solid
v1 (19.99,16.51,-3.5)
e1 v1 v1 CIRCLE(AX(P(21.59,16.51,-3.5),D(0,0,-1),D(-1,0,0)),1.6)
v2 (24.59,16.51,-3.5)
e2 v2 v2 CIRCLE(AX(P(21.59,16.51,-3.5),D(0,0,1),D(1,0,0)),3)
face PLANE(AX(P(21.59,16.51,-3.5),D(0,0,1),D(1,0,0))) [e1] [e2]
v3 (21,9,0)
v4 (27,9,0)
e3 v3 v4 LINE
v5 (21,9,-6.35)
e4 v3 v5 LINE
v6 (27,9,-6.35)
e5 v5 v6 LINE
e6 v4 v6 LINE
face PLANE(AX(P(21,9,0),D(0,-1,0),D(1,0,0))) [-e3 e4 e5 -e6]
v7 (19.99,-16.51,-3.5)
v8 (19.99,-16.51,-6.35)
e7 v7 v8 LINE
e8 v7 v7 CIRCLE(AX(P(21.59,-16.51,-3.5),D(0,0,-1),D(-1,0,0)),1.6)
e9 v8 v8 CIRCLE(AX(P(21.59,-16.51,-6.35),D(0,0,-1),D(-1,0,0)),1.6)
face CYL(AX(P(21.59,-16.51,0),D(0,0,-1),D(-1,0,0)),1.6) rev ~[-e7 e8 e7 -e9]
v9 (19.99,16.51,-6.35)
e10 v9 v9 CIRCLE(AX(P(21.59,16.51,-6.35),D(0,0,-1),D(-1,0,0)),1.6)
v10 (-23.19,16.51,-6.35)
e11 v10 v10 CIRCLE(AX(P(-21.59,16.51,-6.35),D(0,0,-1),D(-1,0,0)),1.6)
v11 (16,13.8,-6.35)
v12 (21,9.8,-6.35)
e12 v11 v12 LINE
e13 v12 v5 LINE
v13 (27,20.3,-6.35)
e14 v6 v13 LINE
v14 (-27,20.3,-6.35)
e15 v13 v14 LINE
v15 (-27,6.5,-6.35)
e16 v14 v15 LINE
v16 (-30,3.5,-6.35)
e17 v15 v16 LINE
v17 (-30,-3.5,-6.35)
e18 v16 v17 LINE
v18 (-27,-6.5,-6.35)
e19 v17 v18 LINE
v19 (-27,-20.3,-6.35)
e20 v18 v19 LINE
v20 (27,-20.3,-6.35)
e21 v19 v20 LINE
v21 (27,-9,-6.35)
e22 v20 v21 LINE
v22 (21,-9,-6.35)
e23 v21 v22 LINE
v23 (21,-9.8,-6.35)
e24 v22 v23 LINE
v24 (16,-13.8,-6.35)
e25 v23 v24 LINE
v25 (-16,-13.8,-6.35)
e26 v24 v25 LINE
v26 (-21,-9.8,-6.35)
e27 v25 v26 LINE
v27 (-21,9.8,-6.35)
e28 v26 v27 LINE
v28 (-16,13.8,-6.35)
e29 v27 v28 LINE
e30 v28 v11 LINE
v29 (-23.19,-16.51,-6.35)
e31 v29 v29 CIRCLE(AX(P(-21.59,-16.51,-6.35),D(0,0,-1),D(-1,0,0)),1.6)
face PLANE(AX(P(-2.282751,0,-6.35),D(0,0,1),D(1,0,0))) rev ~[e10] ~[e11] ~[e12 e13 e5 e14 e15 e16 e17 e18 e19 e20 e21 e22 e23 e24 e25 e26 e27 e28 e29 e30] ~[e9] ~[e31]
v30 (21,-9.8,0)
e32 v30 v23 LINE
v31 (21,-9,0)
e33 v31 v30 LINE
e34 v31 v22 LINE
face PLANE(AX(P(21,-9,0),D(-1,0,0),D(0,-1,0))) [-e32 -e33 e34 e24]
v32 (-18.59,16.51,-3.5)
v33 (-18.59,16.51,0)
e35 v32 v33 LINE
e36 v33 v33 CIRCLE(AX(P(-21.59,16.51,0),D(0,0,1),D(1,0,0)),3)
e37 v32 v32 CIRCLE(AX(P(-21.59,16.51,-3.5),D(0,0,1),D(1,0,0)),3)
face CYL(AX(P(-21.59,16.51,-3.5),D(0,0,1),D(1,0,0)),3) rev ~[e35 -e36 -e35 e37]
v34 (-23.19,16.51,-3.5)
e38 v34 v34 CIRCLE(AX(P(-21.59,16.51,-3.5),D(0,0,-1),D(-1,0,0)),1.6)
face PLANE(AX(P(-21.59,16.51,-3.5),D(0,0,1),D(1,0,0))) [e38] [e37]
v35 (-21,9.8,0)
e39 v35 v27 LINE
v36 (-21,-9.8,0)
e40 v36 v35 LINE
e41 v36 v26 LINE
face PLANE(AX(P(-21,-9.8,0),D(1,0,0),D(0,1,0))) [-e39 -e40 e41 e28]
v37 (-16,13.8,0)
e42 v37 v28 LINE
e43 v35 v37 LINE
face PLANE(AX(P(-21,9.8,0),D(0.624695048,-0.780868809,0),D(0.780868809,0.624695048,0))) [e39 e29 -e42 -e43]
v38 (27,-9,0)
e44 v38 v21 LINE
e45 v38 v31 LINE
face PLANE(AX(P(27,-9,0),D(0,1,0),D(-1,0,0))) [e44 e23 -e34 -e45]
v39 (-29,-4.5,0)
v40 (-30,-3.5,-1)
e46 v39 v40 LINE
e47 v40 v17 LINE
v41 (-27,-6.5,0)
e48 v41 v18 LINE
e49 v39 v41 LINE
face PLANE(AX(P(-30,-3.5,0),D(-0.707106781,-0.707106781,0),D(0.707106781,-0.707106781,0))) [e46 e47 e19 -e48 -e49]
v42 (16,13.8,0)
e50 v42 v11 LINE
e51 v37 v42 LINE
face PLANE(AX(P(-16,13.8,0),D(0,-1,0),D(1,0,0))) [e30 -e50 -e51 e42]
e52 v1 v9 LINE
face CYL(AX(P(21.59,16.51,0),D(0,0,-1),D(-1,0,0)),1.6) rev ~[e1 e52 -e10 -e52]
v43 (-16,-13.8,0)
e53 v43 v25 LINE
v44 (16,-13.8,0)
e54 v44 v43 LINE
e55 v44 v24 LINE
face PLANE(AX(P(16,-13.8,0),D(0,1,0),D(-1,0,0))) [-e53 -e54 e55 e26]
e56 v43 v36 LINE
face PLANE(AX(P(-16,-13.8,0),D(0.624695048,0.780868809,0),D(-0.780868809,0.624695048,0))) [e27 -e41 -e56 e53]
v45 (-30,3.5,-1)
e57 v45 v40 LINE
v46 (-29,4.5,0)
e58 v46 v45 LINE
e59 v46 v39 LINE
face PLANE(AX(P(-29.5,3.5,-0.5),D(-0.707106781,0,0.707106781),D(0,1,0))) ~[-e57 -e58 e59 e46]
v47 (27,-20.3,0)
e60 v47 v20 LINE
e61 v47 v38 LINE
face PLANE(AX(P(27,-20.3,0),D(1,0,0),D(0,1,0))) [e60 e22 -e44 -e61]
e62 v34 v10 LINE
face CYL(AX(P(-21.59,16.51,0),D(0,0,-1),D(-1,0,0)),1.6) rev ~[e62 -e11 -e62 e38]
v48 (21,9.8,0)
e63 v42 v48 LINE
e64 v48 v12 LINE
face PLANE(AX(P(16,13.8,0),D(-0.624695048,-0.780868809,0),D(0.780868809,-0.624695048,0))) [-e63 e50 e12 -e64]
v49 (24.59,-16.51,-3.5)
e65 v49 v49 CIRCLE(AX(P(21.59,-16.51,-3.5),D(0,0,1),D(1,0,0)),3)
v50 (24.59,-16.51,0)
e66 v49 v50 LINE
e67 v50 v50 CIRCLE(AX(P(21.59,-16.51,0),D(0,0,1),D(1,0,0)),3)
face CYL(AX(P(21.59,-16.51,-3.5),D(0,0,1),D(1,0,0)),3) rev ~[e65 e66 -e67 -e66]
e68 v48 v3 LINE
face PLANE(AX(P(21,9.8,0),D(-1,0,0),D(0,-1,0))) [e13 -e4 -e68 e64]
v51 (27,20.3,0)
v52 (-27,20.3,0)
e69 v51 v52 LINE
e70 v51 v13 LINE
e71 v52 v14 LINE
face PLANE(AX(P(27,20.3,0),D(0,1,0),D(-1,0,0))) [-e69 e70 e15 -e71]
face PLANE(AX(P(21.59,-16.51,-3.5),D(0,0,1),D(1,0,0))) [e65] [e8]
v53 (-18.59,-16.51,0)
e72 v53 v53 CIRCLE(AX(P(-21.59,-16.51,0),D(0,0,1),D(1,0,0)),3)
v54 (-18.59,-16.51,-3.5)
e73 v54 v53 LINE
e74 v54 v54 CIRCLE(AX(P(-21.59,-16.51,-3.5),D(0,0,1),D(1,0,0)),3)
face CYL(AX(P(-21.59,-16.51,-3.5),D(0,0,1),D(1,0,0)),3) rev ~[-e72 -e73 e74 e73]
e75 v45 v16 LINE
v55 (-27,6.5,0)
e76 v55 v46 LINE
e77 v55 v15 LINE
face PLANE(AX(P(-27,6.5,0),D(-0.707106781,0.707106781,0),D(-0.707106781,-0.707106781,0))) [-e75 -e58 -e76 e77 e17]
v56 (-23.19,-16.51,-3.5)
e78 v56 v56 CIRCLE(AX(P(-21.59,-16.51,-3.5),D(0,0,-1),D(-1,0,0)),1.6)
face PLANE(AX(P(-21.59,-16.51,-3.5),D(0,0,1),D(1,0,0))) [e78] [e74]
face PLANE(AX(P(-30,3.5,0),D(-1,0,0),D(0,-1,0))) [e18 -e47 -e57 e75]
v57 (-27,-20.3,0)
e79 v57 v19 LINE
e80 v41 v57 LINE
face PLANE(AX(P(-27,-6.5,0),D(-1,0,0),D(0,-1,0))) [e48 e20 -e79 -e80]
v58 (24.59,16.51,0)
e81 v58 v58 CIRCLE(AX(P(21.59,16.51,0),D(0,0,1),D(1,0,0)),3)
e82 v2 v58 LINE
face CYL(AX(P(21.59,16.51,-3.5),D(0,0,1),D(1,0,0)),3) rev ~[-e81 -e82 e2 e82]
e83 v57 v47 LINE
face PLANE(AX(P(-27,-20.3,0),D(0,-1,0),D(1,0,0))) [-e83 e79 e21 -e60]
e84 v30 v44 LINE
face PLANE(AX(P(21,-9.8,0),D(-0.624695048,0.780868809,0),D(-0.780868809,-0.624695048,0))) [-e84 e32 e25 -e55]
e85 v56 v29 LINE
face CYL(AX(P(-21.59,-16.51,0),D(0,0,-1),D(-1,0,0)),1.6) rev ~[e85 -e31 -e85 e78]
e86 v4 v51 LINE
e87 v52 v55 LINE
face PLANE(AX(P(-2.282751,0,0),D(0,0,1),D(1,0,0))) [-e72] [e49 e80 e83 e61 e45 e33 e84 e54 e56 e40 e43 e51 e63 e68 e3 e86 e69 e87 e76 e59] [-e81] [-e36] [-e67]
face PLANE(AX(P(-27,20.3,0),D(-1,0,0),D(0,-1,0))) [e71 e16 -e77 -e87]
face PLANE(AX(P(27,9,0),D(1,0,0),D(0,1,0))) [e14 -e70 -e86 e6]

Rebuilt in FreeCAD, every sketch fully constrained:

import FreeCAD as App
import Part
import Sketcher


def edges_at(feature, points):
    """Names of the edges that pass closest to the given points."""
    edges = feature.Shape.Edges
    near = lambda p: min(range(len(edges)), key=lambda i: edges[i].distToShape(Part.Vertex(*p))[0])
    return sorted({f"Edge{near(p) + 1}" for p in points})


def add_polygon(sketch, points):
    """Adds a closed chain of lines whose ends are joined by coincident constraints."""
    first, n = sketch.GeometryCount, len(points)
    for a, b in zip(points, points[1:] + points[:1]):
        sketch.addGeometry(Part.LineSegment(App.Vector(*a, 0), App.Vector(*b, 0)), False)
    for i in range(n):
        sketch.addConstraint(Sketcher.Constraint("Coincident", first + i, 2, first + (i + 1) % n, 1))

doc = App.newDocument("Part")
params = doc.addObject("Spreadsheet::Sheet", "Params")
for row, (alias, value) in enumerate([
    ("sketch1_width", "54 mm"),
    ("sketch1_width2", "6 mm"),
    ("sketch1_width3", "32 mm"),
    ("sketch1_height", "7 mm"),
    ("sketch1_height2", "11.3 mm"),
    ("pad1_length", "6.35 mm"),
    ("sketch2_diameter", "3.2 mm"),
    ("hole_diameter", "3.2 mm"),
    ("hole_cbore_diameter", "6 mm"),
    ("hole_cbore_depth", "3.5 mm"),
    ("chamfer_size", "1 mm"),
], start=1):
    params.set(f"A{row}", alias)
    params.set(f"B{row}", "=" + value)
    params.setAlias(f"B{row}", alias)

body = doc.addObject("PartDesign::Body", "Body")

# Sketch on XY plane
sketch1 = body.newObject("Sketcher::SketchObject", "Sketch")
sketch1.AttachmentSupport = (doc.getObject("XY_Plane"), [""])
sketch1.MapMode = "FlatFace"
add_polygon(sketch1, [(-27, -20.3), (27, -20.3), (27, -9), (21, -9), (21, -9.8), (16, -13.8), (-16, -13.8), (-21, -9.8), (-21, 9.8), (-16, 13.8), (16, 13.8), (21, 9.8), (21, 9), (27, 9), (27, 20.3), (-27, 20.3), (-27, 6.5), (-30, 3.5), (-30, -3.5), (-27, -6.5)])  # lines 0-19
sketch1.addConstraint(Sketcher.Constraint("Horizontal", 0))
sketch1.addConstraint(Sketcher.Constraint("Vertical", 1))
sketch1.addConstraint(Sketcher.Constraint("Horizontal", 2))
sketch1.addConstraint(Sketcher.Constraint("Vertical", 3))
sketch1.addConstraint(Sketcher.Constraint("Horizontal", 5))
sketch1.addConstraint(Sketcher.Constraint("Vertical", 7))
sketch1.addConstraint(Sketcher.Constraint("Horizontal", 9))
sketch1.addConstraint(Sketcher.Constraint("Vertical", 11))
sketch1.addConstraint(Sketcher.Constraint("Horizontal", 12))
sketch1.addConstraint(Sketcher.Constraint("Vertical", 13))
sketch1.addConstraint(Sketcher.Constraint("Horizontal", 14))
sketch1.addConstraint(Sketcher.Constraint("Vertical", 15))
sketch1.addConstraint(Sketcher.Constraint("Vertical", 17))
sketch1.addConstraint(Sketcher.Constraint("Vertical", 19))
sketch1.addConstraint(Sketcher.Constraint("Symmetric", 3, 2, 7, 2, -1, 1))
sketch1.addConstraint(Sketcher.Constraint("Symmetric", 4, 2, 8, 2, -1, 1))
sketch1.addConstraint(Sketcher.Constraint("Symmetric", 6, 2, 10, 2, -1, 1))
sketch1.addConstraint(Sketcher.Constraint("Symmetric", 0, 2, 14, 2, -1, 1))
sketch1.addConstraint(Sketcher.Constraint("Symmetric", 1, 2, 12, 2, -1))
sketch1.addConstraint(Sketcher.Constraint("Symmetric", 15, 2, 18, 2, -1))
sketch1.addConstraint(Sketcher.Constraint("Parallel", 6, 10))
sketch1.addConstraint(Sketcher.Constraint("Perpendicular", 16, 18))
sketch1.addConstraint(Sketcher.Constraint("Horizontal", 3, 2, 6, 2))
sketch1.addConstraint(Sketcher.Constraint("Vertical", 5, 2, 8, 2))
sketch1.addConstraint(Sketcher.Constraint("Equal", 16, 18))
sketch1.addConstraint(Sketcher.Constraint("DistanceX", 0, 1, 0, 2, 54.0))
sketch1.addConstraint(Sketcher.Constraint("DistanceX", 2, 2, 2, 1, 6.0))
sketch1.addConstraint(Sketcher.Constraint("DistanceX", 5, 2, 5, 1, 32.0))
sketch1.addConstraint(Sketcher.Constraint("DistanceY", 17, 2, 17, 1, 7.0))
sketch1.addConstraint(Sketcher.Constraint("DistanceY", 1, 1, 1, 2, 11.3))
sketch1.addConstraint(Sketcher.Constraint("DistanceY", 3, 2, 3, 1, 0.8))
sketch1.addConstraint(Sketcher.Constraint("DistanceY", 7, 1, 7, 2, 19.6))
sketch1.addConstraint(Sketcher.Constraint("DistanceY", 15, 2, 15, 1, 13.8))
sketch1.addConstraint(Sketcher.Constraint("DistanceY", 4, 2, 3, 2, 4.0))
sketch1.setExpression("Constraints[45]", "Params.sketch1_width")
sketch1.setExpression("Constraints[46]", "Params.sketch1_width2")
sketch1.setExpression("Constraints[47]", "Params.sketch1_width3")
sketch1.setExpression("Constraints[48]", "Params.sketch1_height")
sketch1.setExpression("Constraints[49]", "Params.sketch1_height2")
pad1 = body.newObject("PartDesign::Pad", "Pad")
pad1.Profile = sketch1
pad1.setExpression("Length", "Params.pad1_length")
pad1.Reversed = True

# Sketch on XY plane
sketch2 = body.newObject("Sketcher::SketchObject", "Sketch001")
sketch2.AttachmentSupport = (doc.getObject("XY_Plane"), [""])
sketch2.MapMode = "FlatFace"
sketch2.addGeometry(Part.Circle(App.Vector(-21.6, -16.5, 0), App.Vector(0, 0, 1), 1.6), False)
sketch2.addGeometry(Part.Circle(App.Vector(21.6, -16.5, 0), App.Vector(0, 0, 1), 1.6), False)
sketch2.addGeometry(Part.Circle(App.Vector(21.6, 16.5, 0), App.Vector(0, 0, 1), 1.6), False)
sketch2.addGeometry(Part.Circle(App.Vector(-21.6, 16.5, 0), App.Vector(0, 0, 1), 1.6), False)
sketch2.addConstraint(Sketcher.Constraint("Equal", 0, 1))
sketch2.addConstraint(Sketcher.Constraint("Equal", 1, 2))
sketch2.addConstraint(Sketcher.Constraint("Equal", 2, 3))
sketch2.addConstraint(Sketcher.Constraint("Symmetric", 0, 3, 2, 3, -1, 1))
sketch2.addConstraint(Sketcher.Constraint("Symmetric", 1, 3, 3, 3, -1, 1))
sketch2.addConstraint(Sketcher.Constraint("Symmetric", 0, 3, 1, 3, -2))
sketch2.addConstraint(Sketcher.Constraint("Diameter", 0, 3.2))
sketch2.addConstraint(Sketcher.Constraint("DistanceX", 0, 3, -1, 1, 21.59))
sketch2.addConstraint(Sketcher.Constraint("DistanceY", 0, 3, -1, 1, 16.51))
sketch2.setExpression("Constraints[6]", "Params.sketch2_diameter")
doc.recompute()
hole = body.newObject("PartDesign::Hole", "Hole")
hole.Profile = sketch2
hole.ThreadType = "None"
hole.setExpression("Diameter", "Params.hole_diameter")
hole.DepthType = "ThroughAll"
hole.HoleCutType = "Counterbore"
hole.setExpression("HoleCutDiameter", "Params.hole_cbore_diameter")
hole.setExpression("HoleCutDepth", "Params.hole_cbore_depth")
doc.recompute()

chamfer = body.newObject("PartDesign::Chamfer", "Chamfer")
chamfer.Base = (hole, edges_at(hole, [(-30, 0, 0)]))
chamfer.setExpression("Size", "Params.chamfer_size")

doc.recompute()
